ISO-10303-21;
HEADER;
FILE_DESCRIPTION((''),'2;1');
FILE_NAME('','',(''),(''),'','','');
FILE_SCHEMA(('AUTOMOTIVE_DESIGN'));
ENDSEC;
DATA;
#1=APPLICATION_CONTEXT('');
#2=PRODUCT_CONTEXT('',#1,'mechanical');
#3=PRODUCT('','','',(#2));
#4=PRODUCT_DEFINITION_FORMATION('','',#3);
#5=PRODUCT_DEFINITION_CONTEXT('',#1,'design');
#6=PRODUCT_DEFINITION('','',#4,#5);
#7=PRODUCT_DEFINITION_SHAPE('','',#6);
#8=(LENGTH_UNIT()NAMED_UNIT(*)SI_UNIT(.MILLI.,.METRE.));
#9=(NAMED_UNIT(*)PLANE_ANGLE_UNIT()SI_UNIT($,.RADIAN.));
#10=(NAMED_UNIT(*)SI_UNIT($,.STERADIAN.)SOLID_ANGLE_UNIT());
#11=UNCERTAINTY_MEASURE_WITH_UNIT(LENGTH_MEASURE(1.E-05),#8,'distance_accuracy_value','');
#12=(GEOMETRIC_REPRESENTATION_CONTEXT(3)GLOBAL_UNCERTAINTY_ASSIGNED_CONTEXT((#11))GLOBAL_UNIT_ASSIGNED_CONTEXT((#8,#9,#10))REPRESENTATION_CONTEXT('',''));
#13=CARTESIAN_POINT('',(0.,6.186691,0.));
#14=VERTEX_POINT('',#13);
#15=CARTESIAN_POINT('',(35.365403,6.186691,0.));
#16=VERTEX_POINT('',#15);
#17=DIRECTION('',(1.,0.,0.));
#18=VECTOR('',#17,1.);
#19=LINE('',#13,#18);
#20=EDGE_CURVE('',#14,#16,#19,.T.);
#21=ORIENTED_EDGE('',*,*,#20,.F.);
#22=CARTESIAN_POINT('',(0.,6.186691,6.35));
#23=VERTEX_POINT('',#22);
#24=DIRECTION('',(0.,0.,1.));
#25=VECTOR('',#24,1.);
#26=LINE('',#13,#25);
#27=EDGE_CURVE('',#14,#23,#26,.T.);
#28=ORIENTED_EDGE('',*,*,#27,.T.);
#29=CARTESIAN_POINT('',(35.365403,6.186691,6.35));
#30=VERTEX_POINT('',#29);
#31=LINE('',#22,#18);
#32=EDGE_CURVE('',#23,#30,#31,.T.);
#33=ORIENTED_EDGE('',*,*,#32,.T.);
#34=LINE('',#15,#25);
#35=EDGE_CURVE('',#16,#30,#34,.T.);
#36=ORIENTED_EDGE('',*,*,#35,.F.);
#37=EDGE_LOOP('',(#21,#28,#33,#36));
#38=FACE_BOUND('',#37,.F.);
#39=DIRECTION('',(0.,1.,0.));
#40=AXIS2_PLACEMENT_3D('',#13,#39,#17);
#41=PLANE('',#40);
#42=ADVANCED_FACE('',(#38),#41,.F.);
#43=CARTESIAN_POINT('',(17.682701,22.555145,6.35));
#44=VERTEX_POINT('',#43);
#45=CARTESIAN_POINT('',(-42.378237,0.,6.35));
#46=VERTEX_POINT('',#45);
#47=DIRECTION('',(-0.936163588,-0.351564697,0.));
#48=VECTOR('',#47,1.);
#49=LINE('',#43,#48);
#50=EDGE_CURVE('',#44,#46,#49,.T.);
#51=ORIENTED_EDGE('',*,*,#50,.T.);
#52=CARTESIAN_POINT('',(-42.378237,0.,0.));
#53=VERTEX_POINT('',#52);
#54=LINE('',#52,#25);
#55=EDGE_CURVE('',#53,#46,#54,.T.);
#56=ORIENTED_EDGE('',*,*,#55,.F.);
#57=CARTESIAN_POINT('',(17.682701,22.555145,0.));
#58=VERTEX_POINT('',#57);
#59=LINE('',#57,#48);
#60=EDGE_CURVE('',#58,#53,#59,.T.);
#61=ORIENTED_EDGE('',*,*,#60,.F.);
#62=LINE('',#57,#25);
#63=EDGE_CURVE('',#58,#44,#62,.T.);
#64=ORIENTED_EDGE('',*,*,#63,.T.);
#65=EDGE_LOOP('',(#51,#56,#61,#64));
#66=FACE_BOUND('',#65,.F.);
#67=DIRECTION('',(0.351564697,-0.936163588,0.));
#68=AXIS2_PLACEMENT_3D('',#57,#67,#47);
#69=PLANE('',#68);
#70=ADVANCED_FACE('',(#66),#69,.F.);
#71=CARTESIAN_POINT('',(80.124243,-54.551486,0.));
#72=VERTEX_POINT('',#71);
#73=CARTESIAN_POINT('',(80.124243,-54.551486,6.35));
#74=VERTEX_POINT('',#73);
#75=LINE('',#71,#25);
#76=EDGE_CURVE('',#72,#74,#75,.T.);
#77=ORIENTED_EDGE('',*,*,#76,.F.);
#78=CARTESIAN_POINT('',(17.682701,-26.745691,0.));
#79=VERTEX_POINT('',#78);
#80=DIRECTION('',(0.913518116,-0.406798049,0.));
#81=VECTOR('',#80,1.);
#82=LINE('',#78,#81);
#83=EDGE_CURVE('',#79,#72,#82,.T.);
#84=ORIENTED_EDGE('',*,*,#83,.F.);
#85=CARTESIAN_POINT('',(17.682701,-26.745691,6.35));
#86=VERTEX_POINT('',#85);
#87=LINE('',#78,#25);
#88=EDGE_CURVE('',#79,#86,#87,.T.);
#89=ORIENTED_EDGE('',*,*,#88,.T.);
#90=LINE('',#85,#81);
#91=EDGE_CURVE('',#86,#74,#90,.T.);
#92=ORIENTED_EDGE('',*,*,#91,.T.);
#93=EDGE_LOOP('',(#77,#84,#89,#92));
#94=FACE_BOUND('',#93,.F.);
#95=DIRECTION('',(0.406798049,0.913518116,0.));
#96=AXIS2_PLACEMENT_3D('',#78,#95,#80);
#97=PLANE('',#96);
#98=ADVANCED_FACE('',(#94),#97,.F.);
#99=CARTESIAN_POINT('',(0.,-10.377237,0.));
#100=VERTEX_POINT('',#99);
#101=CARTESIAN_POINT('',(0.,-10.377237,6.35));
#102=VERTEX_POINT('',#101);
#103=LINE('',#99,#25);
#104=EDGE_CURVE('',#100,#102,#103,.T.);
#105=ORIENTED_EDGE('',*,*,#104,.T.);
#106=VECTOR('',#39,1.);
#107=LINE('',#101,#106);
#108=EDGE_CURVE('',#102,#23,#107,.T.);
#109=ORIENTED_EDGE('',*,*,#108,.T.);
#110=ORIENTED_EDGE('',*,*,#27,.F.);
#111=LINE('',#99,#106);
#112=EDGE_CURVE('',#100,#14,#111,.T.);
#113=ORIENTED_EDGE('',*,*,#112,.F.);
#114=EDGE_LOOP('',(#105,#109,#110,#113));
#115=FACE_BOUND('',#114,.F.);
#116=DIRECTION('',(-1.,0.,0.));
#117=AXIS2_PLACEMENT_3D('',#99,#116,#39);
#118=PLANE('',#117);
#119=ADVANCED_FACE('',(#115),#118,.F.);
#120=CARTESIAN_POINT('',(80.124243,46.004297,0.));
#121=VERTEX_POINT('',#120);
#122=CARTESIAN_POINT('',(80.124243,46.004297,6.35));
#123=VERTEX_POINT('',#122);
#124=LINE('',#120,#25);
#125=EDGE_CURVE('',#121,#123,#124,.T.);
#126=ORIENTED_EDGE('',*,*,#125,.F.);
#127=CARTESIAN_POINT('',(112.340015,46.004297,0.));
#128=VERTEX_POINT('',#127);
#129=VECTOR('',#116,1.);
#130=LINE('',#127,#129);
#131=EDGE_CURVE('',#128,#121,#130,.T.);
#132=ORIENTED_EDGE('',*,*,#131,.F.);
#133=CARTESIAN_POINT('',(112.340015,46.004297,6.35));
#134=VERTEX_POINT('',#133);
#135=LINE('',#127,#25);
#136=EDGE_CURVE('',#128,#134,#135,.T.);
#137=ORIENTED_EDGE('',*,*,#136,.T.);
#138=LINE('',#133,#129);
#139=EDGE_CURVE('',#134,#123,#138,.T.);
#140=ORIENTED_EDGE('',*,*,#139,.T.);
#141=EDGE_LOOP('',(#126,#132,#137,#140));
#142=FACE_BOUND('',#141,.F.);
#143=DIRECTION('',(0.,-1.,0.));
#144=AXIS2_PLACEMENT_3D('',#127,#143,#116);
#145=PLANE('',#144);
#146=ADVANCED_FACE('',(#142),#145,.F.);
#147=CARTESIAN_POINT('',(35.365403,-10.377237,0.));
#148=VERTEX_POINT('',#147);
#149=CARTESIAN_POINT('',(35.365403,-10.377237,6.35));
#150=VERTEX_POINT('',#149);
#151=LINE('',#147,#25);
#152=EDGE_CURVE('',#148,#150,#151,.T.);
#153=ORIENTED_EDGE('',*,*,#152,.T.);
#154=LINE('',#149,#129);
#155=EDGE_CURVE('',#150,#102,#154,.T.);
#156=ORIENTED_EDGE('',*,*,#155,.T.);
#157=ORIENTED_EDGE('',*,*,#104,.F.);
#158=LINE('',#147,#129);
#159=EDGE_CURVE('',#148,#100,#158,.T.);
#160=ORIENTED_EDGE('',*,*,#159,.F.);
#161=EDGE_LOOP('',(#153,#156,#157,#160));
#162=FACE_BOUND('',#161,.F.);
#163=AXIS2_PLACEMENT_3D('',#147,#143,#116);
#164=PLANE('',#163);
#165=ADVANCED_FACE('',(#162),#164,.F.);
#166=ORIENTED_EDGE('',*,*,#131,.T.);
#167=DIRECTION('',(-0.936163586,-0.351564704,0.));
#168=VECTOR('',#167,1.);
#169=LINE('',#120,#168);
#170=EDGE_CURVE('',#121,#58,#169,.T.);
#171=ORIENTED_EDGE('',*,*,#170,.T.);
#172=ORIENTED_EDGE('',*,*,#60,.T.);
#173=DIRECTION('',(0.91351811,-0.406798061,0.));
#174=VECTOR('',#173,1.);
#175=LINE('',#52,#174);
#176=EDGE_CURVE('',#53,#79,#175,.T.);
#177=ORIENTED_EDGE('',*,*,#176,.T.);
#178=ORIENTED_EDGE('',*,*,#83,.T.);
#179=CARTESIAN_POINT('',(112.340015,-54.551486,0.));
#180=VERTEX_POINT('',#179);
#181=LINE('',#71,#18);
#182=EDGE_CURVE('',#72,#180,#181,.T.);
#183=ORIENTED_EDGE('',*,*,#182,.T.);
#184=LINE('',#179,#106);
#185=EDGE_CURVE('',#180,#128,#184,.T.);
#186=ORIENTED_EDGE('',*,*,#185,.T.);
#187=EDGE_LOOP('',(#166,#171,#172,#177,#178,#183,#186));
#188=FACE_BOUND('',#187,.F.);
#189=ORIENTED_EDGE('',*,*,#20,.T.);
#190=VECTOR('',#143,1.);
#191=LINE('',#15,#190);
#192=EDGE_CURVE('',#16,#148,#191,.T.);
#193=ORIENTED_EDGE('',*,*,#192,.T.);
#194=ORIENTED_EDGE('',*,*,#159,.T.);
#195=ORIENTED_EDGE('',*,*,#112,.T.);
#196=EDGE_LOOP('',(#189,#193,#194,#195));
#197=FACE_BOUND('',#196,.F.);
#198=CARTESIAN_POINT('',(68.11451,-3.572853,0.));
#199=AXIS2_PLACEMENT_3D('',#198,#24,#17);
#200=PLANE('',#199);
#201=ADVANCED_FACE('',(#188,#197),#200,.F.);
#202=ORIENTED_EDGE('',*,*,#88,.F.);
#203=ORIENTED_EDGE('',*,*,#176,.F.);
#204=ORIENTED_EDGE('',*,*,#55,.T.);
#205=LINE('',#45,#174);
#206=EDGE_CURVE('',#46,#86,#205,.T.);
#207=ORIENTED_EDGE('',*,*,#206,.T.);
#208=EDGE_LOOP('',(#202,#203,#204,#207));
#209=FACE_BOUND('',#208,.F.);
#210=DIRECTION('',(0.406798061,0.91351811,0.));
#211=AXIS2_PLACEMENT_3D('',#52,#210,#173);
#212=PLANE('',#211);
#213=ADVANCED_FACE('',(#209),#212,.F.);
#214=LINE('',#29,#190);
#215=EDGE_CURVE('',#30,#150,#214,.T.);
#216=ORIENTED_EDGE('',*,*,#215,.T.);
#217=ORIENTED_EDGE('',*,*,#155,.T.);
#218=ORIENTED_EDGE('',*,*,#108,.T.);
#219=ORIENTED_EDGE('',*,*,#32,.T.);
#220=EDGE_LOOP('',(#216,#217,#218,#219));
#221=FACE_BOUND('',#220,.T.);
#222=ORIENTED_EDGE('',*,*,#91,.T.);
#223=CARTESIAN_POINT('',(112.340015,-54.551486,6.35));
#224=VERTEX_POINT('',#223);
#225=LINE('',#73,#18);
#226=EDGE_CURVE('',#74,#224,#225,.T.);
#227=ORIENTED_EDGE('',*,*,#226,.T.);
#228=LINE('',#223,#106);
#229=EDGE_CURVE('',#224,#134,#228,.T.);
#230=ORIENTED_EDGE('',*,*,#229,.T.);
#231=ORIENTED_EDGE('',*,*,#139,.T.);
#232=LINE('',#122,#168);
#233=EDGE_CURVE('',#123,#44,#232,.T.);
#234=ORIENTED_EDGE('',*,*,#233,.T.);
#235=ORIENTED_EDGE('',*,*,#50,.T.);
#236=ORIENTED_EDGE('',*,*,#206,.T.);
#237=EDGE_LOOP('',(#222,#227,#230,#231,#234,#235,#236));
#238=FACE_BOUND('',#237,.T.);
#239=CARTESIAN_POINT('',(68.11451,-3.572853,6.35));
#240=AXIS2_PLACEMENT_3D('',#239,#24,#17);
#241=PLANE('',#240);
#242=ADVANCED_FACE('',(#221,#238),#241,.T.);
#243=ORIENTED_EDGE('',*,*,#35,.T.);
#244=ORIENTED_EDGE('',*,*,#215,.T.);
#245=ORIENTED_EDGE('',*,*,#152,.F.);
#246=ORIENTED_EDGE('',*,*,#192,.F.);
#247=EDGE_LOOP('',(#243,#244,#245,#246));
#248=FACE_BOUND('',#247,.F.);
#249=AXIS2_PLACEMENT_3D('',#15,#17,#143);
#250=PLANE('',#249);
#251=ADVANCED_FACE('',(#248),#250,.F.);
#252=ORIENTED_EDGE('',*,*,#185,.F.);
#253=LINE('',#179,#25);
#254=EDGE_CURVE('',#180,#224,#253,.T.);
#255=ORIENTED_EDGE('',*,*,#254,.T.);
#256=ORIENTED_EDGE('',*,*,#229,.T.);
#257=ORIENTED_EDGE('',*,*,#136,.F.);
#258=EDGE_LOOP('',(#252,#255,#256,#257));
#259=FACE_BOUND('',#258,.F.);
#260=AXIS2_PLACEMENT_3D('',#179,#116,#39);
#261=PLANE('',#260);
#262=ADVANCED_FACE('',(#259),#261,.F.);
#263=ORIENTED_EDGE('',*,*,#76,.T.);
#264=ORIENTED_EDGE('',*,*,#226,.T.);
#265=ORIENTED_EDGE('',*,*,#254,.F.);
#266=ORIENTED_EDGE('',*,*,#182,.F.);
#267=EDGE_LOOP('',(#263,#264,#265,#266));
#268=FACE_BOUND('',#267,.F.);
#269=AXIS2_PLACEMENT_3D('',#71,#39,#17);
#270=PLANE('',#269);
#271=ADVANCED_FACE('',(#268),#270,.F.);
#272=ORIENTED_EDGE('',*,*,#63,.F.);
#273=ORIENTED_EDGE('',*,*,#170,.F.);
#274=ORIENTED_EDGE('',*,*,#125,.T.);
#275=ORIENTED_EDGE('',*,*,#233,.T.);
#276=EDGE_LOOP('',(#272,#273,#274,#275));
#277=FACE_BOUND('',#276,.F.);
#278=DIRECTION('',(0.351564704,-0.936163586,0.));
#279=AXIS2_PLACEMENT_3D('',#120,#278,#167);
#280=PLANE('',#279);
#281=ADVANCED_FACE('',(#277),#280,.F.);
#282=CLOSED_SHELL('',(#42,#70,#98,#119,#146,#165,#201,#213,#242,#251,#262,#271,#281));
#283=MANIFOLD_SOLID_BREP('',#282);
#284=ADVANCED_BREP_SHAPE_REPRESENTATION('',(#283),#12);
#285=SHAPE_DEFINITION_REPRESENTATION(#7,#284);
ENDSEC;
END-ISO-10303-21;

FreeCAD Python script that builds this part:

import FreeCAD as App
import Part
import Sketcher
Q = App.Units.Quantity

doc = App.newDocument("Part")
body = doc.addObject("PartDesign::Body", "Body")

# Sketch on XY plane
sketch1 = body.newObject("Sketcher::SketchObject", "Sketch")
sketch1.AttachmentSupport = (doc.getObject("XY_Plane"), [""])
sketch1.MapMode = "FlatFace"
sketch1.addGeometry([
    Part.LineSegment(App.Vector(112, -55, 0), App.Vector(112, 46, 0)),  # 0
    Part.LineSegment(App.Vector(112, 46, 0), App.Vector(80, 46, 0)),  # 1
    Part.LineSegment(App.Vector(80, 46, 0), App.Vector(18, 23, 0)),  # 2
    Part.LineSegment(App.Vector(18, 23, 0), App.Vector(-42, 0, 0)),  # 3
    Part.LineSegment(App.Vector(-42, 0, 0), App.Vector(18, -27, 0)),  # 4
    Part.LineSegment(App.Vector(18, -27, 0), App.Vector(80, -55, 0)),  # 5
    Part.LineSegment(App.Vector(80, -55, 0), App.Vector(112, -55, 0)),  # 6
    Part.LineSegment(App.Vector(35, 6, 0), App.Vector(35, -10, 0)),  # 7
    Part.LineSegment(App.Vector(35, -10, 0), App.Vector(0, -10, 0)),  # 8
    Part.LineSegment(App.Vector(0, -10, 0), App.Vector(0, 6, 0)),  # 9
    Part.LineSegment(App.Vector(0, 6, 0), App.Vector(35, 6, 0)),  # 10
], False)
sketch1.addConstraint([
    Sketcher.Constraint("Coincident", 0, 2, 1, 1),
    Sketcher.Constraint("Coincident", 1, 2, 2, 1),
    Sketcher.Constraint("Coincident", 2, 2, 3, 1),
    Sketcher.Constraint("Coincident", 3, 2, 4, 1),
    Sketcher.Constraint("Coincident", 4, 2, 5, 1),
    Sketcher.Constraint("Coincident", 5, 2, 6, 1),
    Sketcher.Constraint("Coincident", 6, 2, 0, 1),
    Sketcher.Constraint("Coincident", 7, 2, 8, 1),
    Sketcher.Constraint("Coincident", 8, 2, 9, 1),
    Sketcher.Constraint("Coincident", 9, 2, 10, 1),
    Sketcher.Constraint("Coincident", 10, 2, 7, 1),
    Sketcher.Constraint("Vertical", 0),
    Sketcher.Constraint("Horizontal", 1),
    Sketcher.Constraint("Horizontal", 6),
    Sketcher.Constraint("Vertical", 7),
    Sketcher.Constraint("Horizontal", 8),
    Sketcher.Constraint("Vertical", 9),
    Sketcher.Constraint("Horizontal", 10),
    Sketcher.Constraint("PointOnObject", 3, 2, -1),
    Sketcher.Constraint("PointOnObject", 8, 2, -2),
    Sketcher.Constraint("Parallel", 2, 3),
    Sketcher.Constraint("Parallel", 4, 5),
    Sketcher.Constraint("Vertical", 2, 2, 4, 2),
    Sketcher.Constraint("Vertical", 1, 2, 5, 2),
    Sketcher.Constraint("DistanceX", 1, 2, 1, 1, Q("32.215772 mm")),
    Sketcher.Constraint("DistanceX", -1, 1, 2, 2, Q("17.682701 mm")),
    Sketcher.Constraint("DistanceX", 4, 2, 7, 2, Q("17.682702 mm")),
    Sketcher.Constraint("Distance", 4, Q("65.74685 mm")),
    Sketcher.Constraint("DistanceY", 0, 1, 0, 2, Q("100.555783 mm")),
    Sketcher.Constraint("DistanceY", 7, 2, 7, 1, Q("16.563928 mm")),
    Sketcher.Constraint("DistanceY", 4, 2, -1, 1, Q("26.745691 mm")),
    Sketcher.Constraint("DistanceY", -1, 1, 9, 2, Q("6.186691 mm")),
    Sketcher.Constraint("DistanceX", 3, 2, 1, 2, Q("122.50248 mm")),
])
pad1 = body.newObject("PartDesign::Pad", "Pad")
pad1.Profile = sketch1
pad1.Length = Q("0.25 in")

doc.recompute()
